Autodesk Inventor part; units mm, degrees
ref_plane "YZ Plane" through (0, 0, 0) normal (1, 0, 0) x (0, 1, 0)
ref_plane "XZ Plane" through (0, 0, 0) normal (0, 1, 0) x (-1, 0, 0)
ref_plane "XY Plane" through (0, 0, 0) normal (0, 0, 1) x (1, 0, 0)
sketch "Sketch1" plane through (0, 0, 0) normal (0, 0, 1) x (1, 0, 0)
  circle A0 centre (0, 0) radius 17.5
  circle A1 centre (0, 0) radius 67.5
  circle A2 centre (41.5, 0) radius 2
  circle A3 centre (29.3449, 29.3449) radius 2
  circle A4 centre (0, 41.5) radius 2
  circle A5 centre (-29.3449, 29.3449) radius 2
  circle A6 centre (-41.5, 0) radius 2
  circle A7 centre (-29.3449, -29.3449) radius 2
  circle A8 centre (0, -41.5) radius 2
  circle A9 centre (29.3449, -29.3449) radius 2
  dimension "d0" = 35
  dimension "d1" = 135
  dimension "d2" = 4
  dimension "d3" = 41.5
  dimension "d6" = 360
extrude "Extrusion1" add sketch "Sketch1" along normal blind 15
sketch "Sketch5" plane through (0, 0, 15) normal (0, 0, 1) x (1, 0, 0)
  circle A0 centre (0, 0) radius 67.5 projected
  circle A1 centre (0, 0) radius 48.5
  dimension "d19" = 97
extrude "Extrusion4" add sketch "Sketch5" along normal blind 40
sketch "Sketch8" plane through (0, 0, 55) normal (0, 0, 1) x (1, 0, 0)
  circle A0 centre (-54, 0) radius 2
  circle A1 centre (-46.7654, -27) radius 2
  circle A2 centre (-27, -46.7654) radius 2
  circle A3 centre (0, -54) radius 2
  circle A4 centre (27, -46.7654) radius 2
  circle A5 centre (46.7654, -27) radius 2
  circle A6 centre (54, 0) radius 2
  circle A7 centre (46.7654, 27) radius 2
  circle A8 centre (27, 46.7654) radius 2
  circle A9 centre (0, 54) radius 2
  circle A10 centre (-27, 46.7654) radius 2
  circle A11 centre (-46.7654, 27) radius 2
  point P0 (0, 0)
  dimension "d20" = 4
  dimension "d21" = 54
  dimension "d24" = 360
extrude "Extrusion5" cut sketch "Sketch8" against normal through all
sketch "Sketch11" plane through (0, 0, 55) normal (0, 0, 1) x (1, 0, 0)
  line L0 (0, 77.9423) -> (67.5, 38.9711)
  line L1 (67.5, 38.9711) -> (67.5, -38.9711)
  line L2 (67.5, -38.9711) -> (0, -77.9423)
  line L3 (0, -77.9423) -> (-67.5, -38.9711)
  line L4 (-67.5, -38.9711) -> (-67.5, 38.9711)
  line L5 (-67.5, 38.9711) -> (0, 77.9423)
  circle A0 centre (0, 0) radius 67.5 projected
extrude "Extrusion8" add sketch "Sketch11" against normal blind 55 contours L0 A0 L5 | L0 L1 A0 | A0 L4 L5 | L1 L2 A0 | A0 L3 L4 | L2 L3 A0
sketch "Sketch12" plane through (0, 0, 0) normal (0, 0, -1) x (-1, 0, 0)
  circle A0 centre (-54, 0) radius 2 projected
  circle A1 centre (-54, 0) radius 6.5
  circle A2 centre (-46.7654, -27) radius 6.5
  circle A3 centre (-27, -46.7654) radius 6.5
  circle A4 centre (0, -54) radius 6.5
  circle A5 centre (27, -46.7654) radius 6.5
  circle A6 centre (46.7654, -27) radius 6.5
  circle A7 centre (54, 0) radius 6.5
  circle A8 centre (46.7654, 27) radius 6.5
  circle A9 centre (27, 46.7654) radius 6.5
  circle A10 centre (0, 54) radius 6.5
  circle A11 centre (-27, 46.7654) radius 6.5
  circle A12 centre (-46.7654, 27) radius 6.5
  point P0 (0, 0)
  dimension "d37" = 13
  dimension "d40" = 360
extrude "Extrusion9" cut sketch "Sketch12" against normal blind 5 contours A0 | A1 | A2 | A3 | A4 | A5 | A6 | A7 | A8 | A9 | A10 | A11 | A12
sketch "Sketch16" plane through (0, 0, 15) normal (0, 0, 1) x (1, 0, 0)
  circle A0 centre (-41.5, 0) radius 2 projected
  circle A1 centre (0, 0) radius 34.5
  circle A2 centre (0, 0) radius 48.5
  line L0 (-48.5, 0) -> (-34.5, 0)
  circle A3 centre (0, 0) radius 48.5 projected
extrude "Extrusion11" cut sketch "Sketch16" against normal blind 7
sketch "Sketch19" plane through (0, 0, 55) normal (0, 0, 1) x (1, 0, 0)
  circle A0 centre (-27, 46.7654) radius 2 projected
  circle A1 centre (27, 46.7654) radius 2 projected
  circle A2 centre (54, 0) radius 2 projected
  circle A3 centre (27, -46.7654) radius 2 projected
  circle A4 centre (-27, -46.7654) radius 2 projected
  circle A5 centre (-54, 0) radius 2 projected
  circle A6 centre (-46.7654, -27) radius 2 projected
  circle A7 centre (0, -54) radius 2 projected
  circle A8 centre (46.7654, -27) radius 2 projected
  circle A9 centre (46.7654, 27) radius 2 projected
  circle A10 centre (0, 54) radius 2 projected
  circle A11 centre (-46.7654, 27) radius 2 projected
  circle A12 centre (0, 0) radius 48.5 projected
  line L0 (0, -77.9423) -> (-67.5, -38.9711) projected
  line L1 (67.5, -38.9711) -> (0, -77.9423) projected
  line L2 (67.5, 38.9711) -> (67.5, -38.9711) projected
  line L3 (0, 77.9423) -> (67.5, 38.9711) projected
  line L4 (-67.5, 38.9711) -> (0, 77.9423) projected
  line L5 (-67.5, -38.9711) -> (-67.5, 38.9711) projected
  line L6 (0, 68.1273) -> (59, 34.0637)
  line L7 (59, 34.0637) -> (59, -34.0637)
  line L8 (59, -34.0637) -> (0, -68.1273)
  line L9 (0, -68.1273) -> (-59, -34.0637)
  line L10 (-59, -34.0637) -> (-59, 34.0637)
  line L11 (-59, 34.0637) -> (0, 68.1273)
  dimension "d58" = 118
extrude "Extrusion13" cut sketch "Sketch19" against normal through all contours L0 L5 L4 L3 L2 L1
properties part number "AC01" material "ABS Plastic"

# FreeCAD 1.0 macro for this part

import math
import FreeCAD as App
import Part
import Sketcher
from FreeCAD import Vector
Q = App.Units.Quantity


def add_polygon(sketch, points):
    """Adds a closed chain of lines whose ends are joined by coincident constraints."""
    first, n = sketch.GeometryCount, len(points)
    for a, b in zip(points, points[1:] + points[:1]):
        sketch.addGeometry(Part.LineSegment(App.Vector(*a, 0), App.Vector(*b, 0)), False)
    for i in range(n):
        sketch.addConstraint(Sketcher.Constraint("Coincident", first + i, 2, first + (i + 1) % n, 1))

doc = App.newDocument("Part")
body = doc.addObject("PartDesign::Body", "Body")

# Sketch on XY plane
sketch1 = doc.addObject("Sketcher::SketchObject", "Sketch")
body.addObject(sketch1)
sketch1.AttachmentSupport = (doc.XY_Plane, [""])
sketch1.MapMode = "FlatFace"
sketch1.addGeometry(Part.Circle(Vector(0, 0, 0), Vector(0, 0, 1), 67.5), False)
sketch1.addGeometry(Part.Circle(Vector(-29.3, -29.3, 0), Vector(0, 0, 1), 2), False)
sketch1.addGeometry(Part.Circle(Vector(0, -41.5, 0), Vector(0, 0, 1), 2), False)
sketch1.addGeometry(Part.Circle(Vector(29.3, -29.3, 0), Vector(0, 0, 1), 2), False)
sketch1.addGeometry(Part.Circle(Vector(-41.5, 0, 0), Vector(0, 0, 1), 2), False)
sketch1.addGeometry(Part.Circle(Vector(-29.3, 29.3, 0), Vector(0, 0, 1), 2), False)
sketch1.addGeometry(Part.Circle(Vector(0, 0, 0), Vector(0, 0, 1), 17.5), False)
sketch1.addGeometry(Part.Circle(Vector(29.3, 29.3, 0), Vector(0, 0, 1), 2), False)
sketch1.addGeometry(Part.Circle(Vector(41.5, 0, 0), Vector(0, 0, 1), 2), False)
sketch1.addGeometry(Part.Circle(Vector(0, 41.5, 0), Vector(0, 0, 1), 2), False)
sketch1.addConstraint(Sketcher.Constraint("Coincident", 0, 3, -1, 1))
sketch1.addConstraint(Sketcher.Constraint("Coincident", 6, 3, -1, 1))
sketch1.addConstraint(Sketcher.Constraint("Equal", 1, 2))
sketch1.addConstraint(Sketcher.Constraint("Equal", 2, 3))
sketch1.addConstraint(Sketcher.Constraint("Equal", 3, 4))
sketch1.addConstraint(Sketcher.Constraint("Equal", 4, 5))
sketch1.addConstraint(Sketcher.Constraint("Equal", 5, 7))
sketch1.addConstraint(Sketcher.Constraint("Equal", 7, 8))
sketch1.addConstraint(Sketcher.Constraint("Equal", 8, 9))
sketch1.addConstraint(Sketcher.Constraint("Symmetric", 3, 3, 5, 3, -1, 1))
sketch1.addConstraint(Sketcher.Constraint("Symmetric", 1, 3, 7, 3, -1, 1))
sketch1.addConstraint(Sketcher.Constraint("Symmetric", 4, 3, 8, 3, -1, 1))
sketch1.addConstraint(Sketcher.Constraint("Symmetric", 2, 3, 9, 3, -1, 1))
sketch1.addConstraint(Sketcher.Constraint("Symmetric", 1, 3, 3, 3, -2))
sketch1.addConstraint(Sketcher.Constraint("PointOnObject", 2, 3, -2))
sketch1.addConstraint(Sketcher.Constraint("PointOnObject", 4, 3, -1))
sketch1.addConstraint(Sketcher.Constraint("Diameter", 0, 135.0))
sketch1.addConstraint(Sketcher.Constraint("Diameter", 1, 4.0))
sketch1.addConstraint(Sketcher.Constraint("Diameter", 6, 35.0))
sketch1.addConstraint(Sketcher.Constraint("DistanceY", 2, 3, -1, 1, 41.5))
sketch1.addConstraint(Sketcher.Constraint("DistanceX", 4, 3, -1, 1, 41.5))
sketch1.addConstraint(Sketcher.Constraint("DistanceX", 1, 3, -1, 1, 29.345))
sketch1.addConstraint(Sketcher.Constraint("DistanceY", 1, 3, -1, 1, 29.345))
pad1 = doc.addObject("PartDesign::Pad", "Pad")
body.addObject(pad1)
pad1.Profile = sketch1
pad1.Length = 15

# Sketch on XY plane
sketch2 = doc.addObject("Sketcher::SketchObject", "Sketch001")
body.addObject(sketch2)
sketch2.AttachmentSupport = (doc.XY_Plane, [""])
sketch2.MapMode = "FlatFace"
sketch2.AttachmentOffset = App.Placement(Vector(0, 0, 15), App.Rotation())
sketch2.addGeometry(Part.Circle(Vector(0, 0, 0), Vector(0, 0, 1), 68), False)
sketch2.addGeometry(Part.Circle(Vector(0, 0, 0), Vector(0, 0, 1), 48), False)
sketch2.addConstraint(Sketcher.Constraint("Coincident", 0, 3, -1, 1))
sketch2.addConstraint(Sketcher.Constraint("Coincident", 1, 3, -1, 1))
sketch2.addConstraint(Sketcher.Constraint("Diameter", 1, 97.0))
sketch2.addConstraint(Sketcher.Constraint("Diameter", 0, 135.0))
pad2 = doc.addObject("PartDesign::Pad", "Pad001")
body.addObject(pad2)
pad2.Profile = sketch2
pad2.Length = 40

# Sketch on XY plane
sketch3 = doc.addObject("Sketcher::SketchObject", "Sketch002")
body.addObject(sketch3)
sketch3.AttachmentSupport = (doc.XY_Plane, [""])
sketch3.MapMode = "FlatFace"
sketch3.AttachmentOffset = App.Placement(Vector(0, 0, 55), App.Rotation())
sketch3.addGeometry(Part.Circle(Vector(-54, 0, 0), Vector(0, 0, 1), 2), False)
sketch3.addGeometry(Part.Circle(Vector(-46.8, -27, 0), Vector(0, 0, 1), 2), False)
sketch3.addGeometry(Part.Circle(Vector(-27, -46.8, 0), Vector(0, 0, 1), 2), False)
sketch3.addGeometry(Part.Circle(Vector(0, -54, 0), Vector(0, 0, 1), 2), False)
sketch3.addGeometry(Part.Circle(Vector(27, -46.8, 0), Vector(0, 0, 1), 2), False)
sketch3.addGeometry(Part.Circle(Vector(46.8, -27, 0), Vector(0, 0, 1), 2), False)
sketch3.addGeometry(Part.Circle(Vector(54, 0, 0), Vector(0, 0, 1), 2), False)
sketch3.addGeometry(Part.Circle(Vector(46.8, 27, 0), Vector(0, 0, 1), 2), False)
sketch3.addGeometry(Part.Circle(Vector(27, 46.8, 0), Vector(0, 0, 1), 2), False)
sketch3.addGeometry(Part.Circle(Vector(0, 54, 0), Vector(0, 0, 1), 2), False)
sketch3.addGeometry(Part.Circle(Vector(-27, 46.8, 0), Vector(0, 0, 1), 2), False)
sketch3.addGeometry(Part.Circle(Vector(-46.8, 27, 0), Vector(0, 0, 1), 2), False)
sketch3.addConstraint(Sketcher.Constraint("Equal", 0, 1))
sketch3.addConstraint(Sketcher.Constraint("Equal", 1, 2))
sketch3.addConstraint(Sketcher.Constraint("Equal", 2, 3))
sketch3.addConstraint(Sketcher.Constraint("Equal", 3, 4))
sketch3.addConstraint(Sketcher.Constraint("Equal", 4, 5))
sketch3.addConstraint(Sketcher.Constraint("Equal", 5, 6))
sketch3.addConstraint(Sketcher.Constraint("Equal", 6, 7))
sketch3.addConstraint(Sketcher.Constraint("Equal", 7, 8))
sketch3.addConstraint(Sketcher.Constraint("Equal", 8, 9))
sketch3.addConstraint(Sketcher.Constraint("Equal", 9, 10))
sketch3.addConstraint(Sketcher.Constraint("Equal", 10, 11))
sketch3.addConstraint(Sketcher.Constraint("Symmetric", 0, 3, 6, 3, -1, 1))
sketch3.addConstraint(Sketcher.Constraint("Symmetric", 1, 3, 7, 3, -1, 1))
sketch3.addConstraint(Sketcher.Constraint("Symmetric", 2, 3, 8, 3, -1, 1))
sketch3.addConstraint(Sketcher.Constraint("Symmetric", 3, 3, 9, 3, -1, 1))
sketch3.addConstraint(Sketcher.Constraint("Symmetric", 4, 3, 10, 3, -1, 1))
sketch3.addConstraint(Sketcher.Constraint("Symmetric", 5, 3, 11, 3, -1, 1))
sketch3.addConstraint(Sketcher.Constraint("Symmetric", 2, 3, 4, 3, -2))
sketch3.addConstraint(Sketcher.Constraint("Symmetric", 1, 3, 5, 3, -2))
sketch3.addConstraint(Sketcher.Constraint("PointOnObject", 0, 3, -1))
sketch3.addConstraint(Sketcher.Constraint("PointOnObject", 3, 3, -2))
sketch3.addConstraint(Sketcher.Constraint("Diameter", 0, 4.0))
sketch3.addConstraint(Sketcher.Constraint("DistanceX", 0, 3, -1, 1, 54.0))
sketch3.addConstraint(Sketcher.Constraint("DistanceY", 3, 3, -1, 1, 54.0))
sketch3.addConstraint(Sketcher.Constraint("DistanceX", 2, 3, 4, 3, 54.0))
sketch3.addConstraint(Sketcher.Constraint("DistanceY", 5, 3, 7, 3, 54.0))
sketch3.addConstraint(Sketcher.Constraint("DistanceX", 1, 3, -1, 1, 46.7654))
sketch3.addConstraint(Sketcher.Constraint("DistanceY", 2, 3, -1, 1, 46.7654))
pocket1 = doc.addObject("PartDesign::Pocket", "Pocket")
body.addObject(pocket1)
pocket1.Profile = sketch3
pocket1.Type = "ThroughAll"

# Sketch on XY plane
sketch4 = doc.addObject("Sketcher::SketchObject", "Sketch003")
body.addObject(sketch4)
sketch4.AttachmentSupport = (doc.XY_Plane, [""])
sketch4.MapMode = "FlatFace"
sketch4.AttachmentOffset = App.Placement(Vector(0, 0, 55), App.Rotation())
sketch4.addGeometry(Part.LineSegment(Vector(34, 58, 0), Vector(0, 78, 0)), False)
sketch4.addGeometry(Part.LineSegment(Vector(0, 78, 0), Vector(-34, 58, 0)), False)
sketch4.addGeometry(Part.ArcOfCircle(Part.Circle(Vector(0, 0, 0), Vector(0, 0, 1), 68), math.radians(60), math.radians(120)), False)
sketch4.addGeometry(Part.LineSegment(Vector(68, 39, 0), Vector(34, 58, 0)), False)
sketch4.addGeometry(Part.ArcOfCircle(Part.Circle(Vector(0, 0, 0), Vector(0, 0, 1), 68), math.radians(0), math.radians(60)), False)
sketch4.addGeometry(Part.LineSegment(Vector(68, 0, 0), Vector(68, 39, 0)), False)
sketch4.addGeometry(Part.ArcOfCircle(Part.Circle(Vector(0, 0, 0), Vector(0, 0, 1), 68), math.radians(120), math.radians(180)), False)
sketch4.addGeometry(Part.LineSegment(Vector(-34, 58, 0), Vector(-68, 39, 0)), False)
sketch4.addGeometry(Part.LineSegment(Vector(-68, 39, 0), Vector(-68, 0, 0)), False)
sketch4.addGeometry(Part.LineSegment(Vector(68, -39, 0), Vector(68, 0, 0)), False)
sketch4.addGeometry(Part.ArcOfCircle(Part.Circle(Vector(0, 0, 0), Vector(0, 0, 1), 68), math.radians(-60), math.radians(0)), False)
sketch4.addGeometry(Part.LineSegment(Vector(34, -58, 0), Vector(68, -39, 0)), False)
sketch4.addGeometry(Part.ArcOfCircle(Part.Circle(Vector(0, 0, 0), Vector(0, 0, 1), 68), math.radians(-180), math.radians(-120)), False)
sketch4.addGeometry(Part.LineSegment(Vector(-68, 0, 0), Vector(-68, -39, 0)), False)
sketch4.addGeometry(Part.LineSegment(Vector(-68, -39, 0), Vector(-34, -58, 0)), False)
sketch4.addGeometry(Part.LineSegment(Vector(0, -78, 0), Vector(34, -58, 0)), False)
sketch4.addGeometry(Part.ArcOfCircle(Part.Circle(Vector(0, 0, 0), Vector(0, 0, 1), 68), math.radians(-120), math.radians(-60)), False)
sketch4.addGeometry(Part.LineSegment(Vector(-34, -58, 0), Vector(0, -78, 0)), False)
sketch4.addConstraint(Sketcher.Constraint("Coincident", 0, 2, 1, 1))
sketch4.addConstraint(Sketcher.Constraint("Tangent", 1, 2, 2, 2))
sketch4.addConstraint(Sketcher.Constraint("Tangent", 2, 1, 0, 1))
sketch4.addConstraint(Sketcher.Constraint("Tangent", 3, 2, 4, 2))
sketch4.addConstraint(Sketcher.Constraint("Tangent", 4, 1, 5, 1))
sketch4.addConstraint(Sketcher.Constraint("Coincident", 5, 2, 3, 1))
sketch4.addConstraint(Sketcher.Constraint("Tangent", 6, 1, 7, 1))
sketch4.addConstraint(Sketcher.Constraint("Coincident", 7, 2, 8, 1))
sketch4.addConstraint(Sketcher.Constraint("Tangent", 8, 2, 6, 2))
sketch4.addConstraint(Sketcher.Constraint("Tangent", 9, 2, 10, 2))
sketch4.addConstraint(Sketcher.Constraint("Tangent", 10, 1, 11, 1))
sketch4.addConstraint(Sketcher.Constraint("Coincident", 11, 2, 9, 1))
sketch4.addConstraint(Sketcher.Constraint("Tangent", 12, 1, 13, 1))
sketch4.addConstraint(Sketcher.Constraint("Coincident", 13, 2, 14, 1))
sketch4.addConstraint(Sketcher.Constraint("Tangent", 14, 2, 12, 2))
sketch4.addConstraint(Sketcher.Constraint("Tangent", 15, 2, 16, 2))
sketch4.addConstraint(Sketcher.Constraint("Tangent", 16, 1, 17, 1))
sketch4.addConstraint(Sketcher.Constraint("Coincident", 17, 2, 15, 1))
sketch4.addConstraint(Sketcher.Constraint("Vertical", 5))
sketch4.addConstraint(Sketcher.Constraint("Vertical", 8))
sketch4.addConstraint(Sketcher.Constraint("Vertical", 9))
sketch4.addConstraint(Sketcher.Constraint("Vertical", 13))
sketch4.addConstraint(Sketcher.Constraint("Coincident", 2, 3, -1, 1))
sketch4.addConstraint(Sketcher.Constraint("Coincident", 4, 3, -1, 1))
sketch4.addConstraint(Sketcher.Constraint("Coincident", 6, 3, -1, 1))
sketch4.addConstraint(Sketcher.Constraint("Coincident", 10, 3, -1, 1))
sketch4.addConstraint(Sketcher.Constraint("Coincident", 12, 3, -1, 1))
sketch4.addConstraint(Sketcher.Constraint("Coincident", 16, 3, -1, 1))
sketch4.addConstraint(Sketcher.Constraint("Coincident", 3, 2, 2, 1))
sketch4.addConstraint(Sketcher.Constraint("Coincident", 6, 1, 1, 2))
sketch4.addConstraint(Sketcher.Constraint("Coincident", 15, 2, 10, 1))
sketch4.addConstraint(Sketcher.Constraint("Coincident", 16, 1, 14, 2))
sketch4.addConstraint(Sketcher.Constraint("Equal", 6, 10))
sketch4.addConstraint(Sketcher.Constraint("Symmetric", 0, 2, 17, 2, -1, 1))
sketch4.addConstraint(Sketcher.Constraint("PointOnObject", 0, 2, -2))
sketch4.addConstraint(Sketcher.Constraint("Equal", 1, 3))
sketch4.addConstraint(Sketcher.Constraint("Radius", 2, 67.5))
pad3 = doc.addObject("PartDesign::Pad", "Pad002")
body.addObject(pad3)
pad3.Profile = sketch4
pad3.Length = 55
pad3.Reversed = True

# Sketch on XY plane
sketch5 = doc.addObject("Sketcher::SketchObject", "Sketch004")
body.addObject(sketch5)
sketch5.AttachmentSupport = (doc.XY_Plane, [""])
sketch5.MapMode = "FlatFace"
sketch5.addGeometry(Part.Circle(Vector(54, 0, 0), Vector(0, 0, 1), 6), False)
sketch5.addGeometry(Part.Circle(Vector(47, -27, 0), Vector(0, 0, 1), 6), False)
sketch5.addGeometry(Part.Circle(Vector(27, -47, 0), Vector(0, 0, 1), 6), False)
sketch5.addGeometry(Part.Circle(Vector(0, -54, 0), Vector(0, 0, 1), 6), False)
sketch5.addGeometry(Part.Circle(Vector(-27, -47, 0), Vector(0, 0, 1), 6), False)
sketch5.addGeometry(Part.Circle(Vector(-47, -27, 0), Vector(0, 0, 1), 6), False)
sketch5.addGeometry(Part.Circle(Vector(-54, 0, 0), Vector(0, 0, 1), 6), False)
sketch5.addGeometry(Part.Circle(Vector(-47, 27, 0), Vector(0, 0, 1), 6), False)
sketch5.addGeometry(Part.Circle(Vector(-27, 47, 0), Vector(0, 0, 1), 6), False)
sketch5.addGeometry(Part.Circle(Vector(0, 54, 0), Vector(0, 0, 1), 6), False)
sketch5.addGeometry(Part.Circle(Vector(27, 47, 0), Vector(0, 0, 1), 6), False)
sketch5.addGeometry(Part.Circle(Vector(47, 27, 0), Vector(0, 0, 1), 6), False)
sketch5.addConstraint(Sketcher.Constraint("Equal", 0, 1))
sketch5.addConstraint(Sketcher.Constraint("Equal", 1, 2))
sketch5.addConstraint(Sketcher.Constraint("Equal", 2, 3))
sketch5.addConstraint(Sketcher.Constraint("Equal", 3, 4))
sketch5.addConstraint(Sketcher.Constraint("Equal", 4, 5))
sketch5.addConstraint(Sketcher.Constraint("Equal", 5, 6))
sketch5.addConstraint(Sketcher.Constraint("Equal", 6, 7))
sketch5.addConstraint(Sketcher.Constraint("Equal", 7, 8))
sketch5.addConstraint(Sketcher.Constraint("Equal", 8, 9))
sketch5.addConstraint(Sketcher.Constraint("Equal", 9, 10))
sketch5.addConstraint(Sketcher.Constraint("Equal", 10, 11))
sketch5.addConstraint(Sketcher.Constraint("Symmetric", 0, 3, 6, 3, -1, 1))
sketch5.addConstraint(Sketcher.Constraint("Symmetric", 1, 3, 7, 3, -1, 1))
sketch5.addConstraint(Sketcher.Constraint("Symmetric", 2, 3, 8, 3, -1, 1))
sketch5.addConstraint(Sketcher.Constraint("Symmetric", 3, 3, 9, 3, -1, 1))
sketch5.addConstraint(Sketcher.Constraint("Symmetric", 4, 3, 10, 3, -1, 1))
sketch5.addConstraint(Sketcher.Constraint("Symmetric", 5, 3, 11, 3, -1, 1))
sketch5.addConstraint(Sketcher.Constraint("Symmetric", 2, 3, 4, 3, -2))
sketch5.addConstraint(Sketcher.Constraint("Symmetric", 1, 3, 5, 3, -2))
sketch5.addConstraint(Sketcher.Constraint("PointOnObject", 0, 3, -1))
sketch5.addConstraint(Sketcher.Constraint("PointOnObject", 3, 3, -2))
sketch5.addConstraint(Sketcher.Constraint("Diameter", 0, 13.0))
sketch5.addConstraint(Sketcher.Constraint("DistanceX", -1, 1, 0, 3, 54.0))
sketch5.addConstraint(Sketcher.Constraint("DistanceY", 1, 3, -1, 1, 27.0))
sketch5.addConstraint(Sketcher.Constraint("DistanceX", -1, 1, 2, 3, 27.0))
sketch5.addConstraint(Sketcher.Constraint("DistanceY", 3, 3, -1, 1, 54.0))
sketch5.addConstraint(Sketcher.Constraint("DistanceX", -1, 1, 1, 3, 46.7654))
sketch5.addConstraint(Sketcher.Constraint("DistanceY", 2, 3, -1, 1, 46.7654))
pocket2 = doc.addObject("PartDesign::Pocket", "Pocket001")
body.addObject(pocket2)
pocket2.Profile = sketch5
pocket2.Length = 5
pocket2.Reversed = True

# Sketch on XY plane
sketch6 = doc.addObject("Sketcher::SketchObject", "Sketch005")
body.addObject(sketch6)
sketch6.AttachmentSupport = (doc.XY_Plane, [""])
sketch6.MapMode = "FlatFace"
sketch6.AttachmentOffset = App.Placement(Vector(0, 0, 15), App.Rotation())
sketch6.addGeometry(Part.Circle(Vector(0, 0, 0), Vector(0, 0, 1), 48.5), False)
sketch6.addGeometry(Part.ArcOfCircle(Part.Circle(Vector(-41.5, 0, 0), Vector(0, 0, 1), 2), math.radians(0), math.radians(180)), False)
sketch6.addGeometry(Part.ArcOfCircle(Part.Circle(Vector(-41.5, 0, 0), Vector(0, 0, 1), 2), math.radians(180), math.radians(360)), False)
sketch6.addGeometry(Part.Circle(Vector(0, 0, 0), Vector(0, 0, 1), 34.5), False)
sketch6.addConstraint(Sketcher.Constraint("Tangent", 1, 1, 2, 2))
sketch6.addConstraint(Sketcher.Constraint("Coincident", 2, 1, 1, 2))
sketch6.addConstraint(Sketcher.Constraint("Coincident", 0, 3, -1, 1))
sketch6.addConstraint(Sketcher.Constraint("Coincident", 3, 3, -1, 1))
sketch6.addConstraint(Sketcher.Constraint("PointOnObject", 1, 3, -1))
sketch6.addConstraint(Sketcher.Constraint("PointOnObject", 1, 1, -1))
sketch6.addConstraint(Sketcher.Constraint("PointOnObject", 2, 1, -1))
sketch6.addConstraint(Sketcher.Constraint("Diameter", 0, 97.0))
sketch6.addConstraint(Sketcher.Constraint("Diameter", 3, 69.0))
sketch6.addConstraint(Sketcher.Constraint("Radius", 1, 2.0))
sketch6.addConstraint(Sketcher.Constraint("DistanceX", 1, 3, -1, 1, 41.5))
pocket3 = doc.addObject("PartDesign::Pocket", "Pocket002")
body.addObject(pocket3)
pocket3.Profile = sketch6
pocket3.Length = 7

# Sketch on XY plane
sketch7 = doc.addObject("Sketcher::SketchObject", "Sketch006")
body.addObject(sketch7)
sketch7.AttachmentSupport = (doc.XY_Plane, [""])
sketch7.MapMode = "FlatFace"
sketch7.AttachmentOffset = App.Placement(Vector(0, 0, 55), App.Rotation())
add_polygon(sketch7, [(-68, -39), (0, -78), (68, -39), (68, 39), (0, 78), (-68, 39)])  # lines 0-5
add_polygon(sketch7, [(-59, 34), (0, 68), (59, 34), (59, -34), (0, -68), (-59, -34)])  # lines 6-11
sketch7.addConstraint(Sketcher.Constraint("Vertical", 2))
sketch7.addConstraint(Sketcher.Constraint("Vertical", 5))
sketch7.addConstraint(Sketcher.Constraint("Vertical", 8))
sketch7.addConstraint(Sketcher.Constraint("Vertical", 11))
sketch7.addConstraint(Sketcher.Constraint("Symmetric", 0, 2, 3, 2, -1, 1))
sketch7.addConstraint(Sketcher.Constraint("Symmetric", 1, 2, 4, 2, -1, 1))
sketch7.addConstraint(Sketcher.Constraint("Symmetric", 6, 2, 9, 2, -1, 1))
sketch7.addConstraint(Sketcher.Constraint("Symmetric", 7, 2, 10, 2, -1, 1))
sketch7.addConstraint(Sketcher.Constraint("PointOnObject", 0, 2, -2))
sketch7.addConstraint(Sketcher.Constraint("PointOnObject", 6, 2, -2))
sketch7.addConstraint(Sketcher.Constraint("Parallel", 0, 3))
sketch7.addConstraint(Sketcher.Constraint("Parallel", 4, 6))
sketch7.addConstraint(Sketcher.Constraint("Parallel", 3, 7))
sketch7.addConstraint(Sketcher.Constraint("Parallel", 6, 9))
sketch7.addConstraint(Sketcher.Constraint("Horizontal", 2, 2, 4, 2))
sketch7.addConstraint(Sketcher.Constraint("DistanceX", 10, 2, 8, 2, 118.0))
sketch7.addConstraint(Sketcher.Constraint("Angle", 0, Q("-30 deg")))
sketch7.addConstraint(Sketcher.Constraint("DistanceX", 4, 2, 2, 2, 135.0))
sketch7.addConstraint(Sketcher.Constraint("DistanceY", 2, 1, 2, 2, 77.9422))
sketch7.addConstraint(Sketcher.Constraint("DistanceY", 8, 2, 8, 1, 68.1274))
pocket4 = doc.addObject("PartDesign::Pocket", "Pocket003")
body.addObject(pocket4)
pocket4.Profile = sketch7
pocket4.Type = "ThroughAll"

doc.recompute()
